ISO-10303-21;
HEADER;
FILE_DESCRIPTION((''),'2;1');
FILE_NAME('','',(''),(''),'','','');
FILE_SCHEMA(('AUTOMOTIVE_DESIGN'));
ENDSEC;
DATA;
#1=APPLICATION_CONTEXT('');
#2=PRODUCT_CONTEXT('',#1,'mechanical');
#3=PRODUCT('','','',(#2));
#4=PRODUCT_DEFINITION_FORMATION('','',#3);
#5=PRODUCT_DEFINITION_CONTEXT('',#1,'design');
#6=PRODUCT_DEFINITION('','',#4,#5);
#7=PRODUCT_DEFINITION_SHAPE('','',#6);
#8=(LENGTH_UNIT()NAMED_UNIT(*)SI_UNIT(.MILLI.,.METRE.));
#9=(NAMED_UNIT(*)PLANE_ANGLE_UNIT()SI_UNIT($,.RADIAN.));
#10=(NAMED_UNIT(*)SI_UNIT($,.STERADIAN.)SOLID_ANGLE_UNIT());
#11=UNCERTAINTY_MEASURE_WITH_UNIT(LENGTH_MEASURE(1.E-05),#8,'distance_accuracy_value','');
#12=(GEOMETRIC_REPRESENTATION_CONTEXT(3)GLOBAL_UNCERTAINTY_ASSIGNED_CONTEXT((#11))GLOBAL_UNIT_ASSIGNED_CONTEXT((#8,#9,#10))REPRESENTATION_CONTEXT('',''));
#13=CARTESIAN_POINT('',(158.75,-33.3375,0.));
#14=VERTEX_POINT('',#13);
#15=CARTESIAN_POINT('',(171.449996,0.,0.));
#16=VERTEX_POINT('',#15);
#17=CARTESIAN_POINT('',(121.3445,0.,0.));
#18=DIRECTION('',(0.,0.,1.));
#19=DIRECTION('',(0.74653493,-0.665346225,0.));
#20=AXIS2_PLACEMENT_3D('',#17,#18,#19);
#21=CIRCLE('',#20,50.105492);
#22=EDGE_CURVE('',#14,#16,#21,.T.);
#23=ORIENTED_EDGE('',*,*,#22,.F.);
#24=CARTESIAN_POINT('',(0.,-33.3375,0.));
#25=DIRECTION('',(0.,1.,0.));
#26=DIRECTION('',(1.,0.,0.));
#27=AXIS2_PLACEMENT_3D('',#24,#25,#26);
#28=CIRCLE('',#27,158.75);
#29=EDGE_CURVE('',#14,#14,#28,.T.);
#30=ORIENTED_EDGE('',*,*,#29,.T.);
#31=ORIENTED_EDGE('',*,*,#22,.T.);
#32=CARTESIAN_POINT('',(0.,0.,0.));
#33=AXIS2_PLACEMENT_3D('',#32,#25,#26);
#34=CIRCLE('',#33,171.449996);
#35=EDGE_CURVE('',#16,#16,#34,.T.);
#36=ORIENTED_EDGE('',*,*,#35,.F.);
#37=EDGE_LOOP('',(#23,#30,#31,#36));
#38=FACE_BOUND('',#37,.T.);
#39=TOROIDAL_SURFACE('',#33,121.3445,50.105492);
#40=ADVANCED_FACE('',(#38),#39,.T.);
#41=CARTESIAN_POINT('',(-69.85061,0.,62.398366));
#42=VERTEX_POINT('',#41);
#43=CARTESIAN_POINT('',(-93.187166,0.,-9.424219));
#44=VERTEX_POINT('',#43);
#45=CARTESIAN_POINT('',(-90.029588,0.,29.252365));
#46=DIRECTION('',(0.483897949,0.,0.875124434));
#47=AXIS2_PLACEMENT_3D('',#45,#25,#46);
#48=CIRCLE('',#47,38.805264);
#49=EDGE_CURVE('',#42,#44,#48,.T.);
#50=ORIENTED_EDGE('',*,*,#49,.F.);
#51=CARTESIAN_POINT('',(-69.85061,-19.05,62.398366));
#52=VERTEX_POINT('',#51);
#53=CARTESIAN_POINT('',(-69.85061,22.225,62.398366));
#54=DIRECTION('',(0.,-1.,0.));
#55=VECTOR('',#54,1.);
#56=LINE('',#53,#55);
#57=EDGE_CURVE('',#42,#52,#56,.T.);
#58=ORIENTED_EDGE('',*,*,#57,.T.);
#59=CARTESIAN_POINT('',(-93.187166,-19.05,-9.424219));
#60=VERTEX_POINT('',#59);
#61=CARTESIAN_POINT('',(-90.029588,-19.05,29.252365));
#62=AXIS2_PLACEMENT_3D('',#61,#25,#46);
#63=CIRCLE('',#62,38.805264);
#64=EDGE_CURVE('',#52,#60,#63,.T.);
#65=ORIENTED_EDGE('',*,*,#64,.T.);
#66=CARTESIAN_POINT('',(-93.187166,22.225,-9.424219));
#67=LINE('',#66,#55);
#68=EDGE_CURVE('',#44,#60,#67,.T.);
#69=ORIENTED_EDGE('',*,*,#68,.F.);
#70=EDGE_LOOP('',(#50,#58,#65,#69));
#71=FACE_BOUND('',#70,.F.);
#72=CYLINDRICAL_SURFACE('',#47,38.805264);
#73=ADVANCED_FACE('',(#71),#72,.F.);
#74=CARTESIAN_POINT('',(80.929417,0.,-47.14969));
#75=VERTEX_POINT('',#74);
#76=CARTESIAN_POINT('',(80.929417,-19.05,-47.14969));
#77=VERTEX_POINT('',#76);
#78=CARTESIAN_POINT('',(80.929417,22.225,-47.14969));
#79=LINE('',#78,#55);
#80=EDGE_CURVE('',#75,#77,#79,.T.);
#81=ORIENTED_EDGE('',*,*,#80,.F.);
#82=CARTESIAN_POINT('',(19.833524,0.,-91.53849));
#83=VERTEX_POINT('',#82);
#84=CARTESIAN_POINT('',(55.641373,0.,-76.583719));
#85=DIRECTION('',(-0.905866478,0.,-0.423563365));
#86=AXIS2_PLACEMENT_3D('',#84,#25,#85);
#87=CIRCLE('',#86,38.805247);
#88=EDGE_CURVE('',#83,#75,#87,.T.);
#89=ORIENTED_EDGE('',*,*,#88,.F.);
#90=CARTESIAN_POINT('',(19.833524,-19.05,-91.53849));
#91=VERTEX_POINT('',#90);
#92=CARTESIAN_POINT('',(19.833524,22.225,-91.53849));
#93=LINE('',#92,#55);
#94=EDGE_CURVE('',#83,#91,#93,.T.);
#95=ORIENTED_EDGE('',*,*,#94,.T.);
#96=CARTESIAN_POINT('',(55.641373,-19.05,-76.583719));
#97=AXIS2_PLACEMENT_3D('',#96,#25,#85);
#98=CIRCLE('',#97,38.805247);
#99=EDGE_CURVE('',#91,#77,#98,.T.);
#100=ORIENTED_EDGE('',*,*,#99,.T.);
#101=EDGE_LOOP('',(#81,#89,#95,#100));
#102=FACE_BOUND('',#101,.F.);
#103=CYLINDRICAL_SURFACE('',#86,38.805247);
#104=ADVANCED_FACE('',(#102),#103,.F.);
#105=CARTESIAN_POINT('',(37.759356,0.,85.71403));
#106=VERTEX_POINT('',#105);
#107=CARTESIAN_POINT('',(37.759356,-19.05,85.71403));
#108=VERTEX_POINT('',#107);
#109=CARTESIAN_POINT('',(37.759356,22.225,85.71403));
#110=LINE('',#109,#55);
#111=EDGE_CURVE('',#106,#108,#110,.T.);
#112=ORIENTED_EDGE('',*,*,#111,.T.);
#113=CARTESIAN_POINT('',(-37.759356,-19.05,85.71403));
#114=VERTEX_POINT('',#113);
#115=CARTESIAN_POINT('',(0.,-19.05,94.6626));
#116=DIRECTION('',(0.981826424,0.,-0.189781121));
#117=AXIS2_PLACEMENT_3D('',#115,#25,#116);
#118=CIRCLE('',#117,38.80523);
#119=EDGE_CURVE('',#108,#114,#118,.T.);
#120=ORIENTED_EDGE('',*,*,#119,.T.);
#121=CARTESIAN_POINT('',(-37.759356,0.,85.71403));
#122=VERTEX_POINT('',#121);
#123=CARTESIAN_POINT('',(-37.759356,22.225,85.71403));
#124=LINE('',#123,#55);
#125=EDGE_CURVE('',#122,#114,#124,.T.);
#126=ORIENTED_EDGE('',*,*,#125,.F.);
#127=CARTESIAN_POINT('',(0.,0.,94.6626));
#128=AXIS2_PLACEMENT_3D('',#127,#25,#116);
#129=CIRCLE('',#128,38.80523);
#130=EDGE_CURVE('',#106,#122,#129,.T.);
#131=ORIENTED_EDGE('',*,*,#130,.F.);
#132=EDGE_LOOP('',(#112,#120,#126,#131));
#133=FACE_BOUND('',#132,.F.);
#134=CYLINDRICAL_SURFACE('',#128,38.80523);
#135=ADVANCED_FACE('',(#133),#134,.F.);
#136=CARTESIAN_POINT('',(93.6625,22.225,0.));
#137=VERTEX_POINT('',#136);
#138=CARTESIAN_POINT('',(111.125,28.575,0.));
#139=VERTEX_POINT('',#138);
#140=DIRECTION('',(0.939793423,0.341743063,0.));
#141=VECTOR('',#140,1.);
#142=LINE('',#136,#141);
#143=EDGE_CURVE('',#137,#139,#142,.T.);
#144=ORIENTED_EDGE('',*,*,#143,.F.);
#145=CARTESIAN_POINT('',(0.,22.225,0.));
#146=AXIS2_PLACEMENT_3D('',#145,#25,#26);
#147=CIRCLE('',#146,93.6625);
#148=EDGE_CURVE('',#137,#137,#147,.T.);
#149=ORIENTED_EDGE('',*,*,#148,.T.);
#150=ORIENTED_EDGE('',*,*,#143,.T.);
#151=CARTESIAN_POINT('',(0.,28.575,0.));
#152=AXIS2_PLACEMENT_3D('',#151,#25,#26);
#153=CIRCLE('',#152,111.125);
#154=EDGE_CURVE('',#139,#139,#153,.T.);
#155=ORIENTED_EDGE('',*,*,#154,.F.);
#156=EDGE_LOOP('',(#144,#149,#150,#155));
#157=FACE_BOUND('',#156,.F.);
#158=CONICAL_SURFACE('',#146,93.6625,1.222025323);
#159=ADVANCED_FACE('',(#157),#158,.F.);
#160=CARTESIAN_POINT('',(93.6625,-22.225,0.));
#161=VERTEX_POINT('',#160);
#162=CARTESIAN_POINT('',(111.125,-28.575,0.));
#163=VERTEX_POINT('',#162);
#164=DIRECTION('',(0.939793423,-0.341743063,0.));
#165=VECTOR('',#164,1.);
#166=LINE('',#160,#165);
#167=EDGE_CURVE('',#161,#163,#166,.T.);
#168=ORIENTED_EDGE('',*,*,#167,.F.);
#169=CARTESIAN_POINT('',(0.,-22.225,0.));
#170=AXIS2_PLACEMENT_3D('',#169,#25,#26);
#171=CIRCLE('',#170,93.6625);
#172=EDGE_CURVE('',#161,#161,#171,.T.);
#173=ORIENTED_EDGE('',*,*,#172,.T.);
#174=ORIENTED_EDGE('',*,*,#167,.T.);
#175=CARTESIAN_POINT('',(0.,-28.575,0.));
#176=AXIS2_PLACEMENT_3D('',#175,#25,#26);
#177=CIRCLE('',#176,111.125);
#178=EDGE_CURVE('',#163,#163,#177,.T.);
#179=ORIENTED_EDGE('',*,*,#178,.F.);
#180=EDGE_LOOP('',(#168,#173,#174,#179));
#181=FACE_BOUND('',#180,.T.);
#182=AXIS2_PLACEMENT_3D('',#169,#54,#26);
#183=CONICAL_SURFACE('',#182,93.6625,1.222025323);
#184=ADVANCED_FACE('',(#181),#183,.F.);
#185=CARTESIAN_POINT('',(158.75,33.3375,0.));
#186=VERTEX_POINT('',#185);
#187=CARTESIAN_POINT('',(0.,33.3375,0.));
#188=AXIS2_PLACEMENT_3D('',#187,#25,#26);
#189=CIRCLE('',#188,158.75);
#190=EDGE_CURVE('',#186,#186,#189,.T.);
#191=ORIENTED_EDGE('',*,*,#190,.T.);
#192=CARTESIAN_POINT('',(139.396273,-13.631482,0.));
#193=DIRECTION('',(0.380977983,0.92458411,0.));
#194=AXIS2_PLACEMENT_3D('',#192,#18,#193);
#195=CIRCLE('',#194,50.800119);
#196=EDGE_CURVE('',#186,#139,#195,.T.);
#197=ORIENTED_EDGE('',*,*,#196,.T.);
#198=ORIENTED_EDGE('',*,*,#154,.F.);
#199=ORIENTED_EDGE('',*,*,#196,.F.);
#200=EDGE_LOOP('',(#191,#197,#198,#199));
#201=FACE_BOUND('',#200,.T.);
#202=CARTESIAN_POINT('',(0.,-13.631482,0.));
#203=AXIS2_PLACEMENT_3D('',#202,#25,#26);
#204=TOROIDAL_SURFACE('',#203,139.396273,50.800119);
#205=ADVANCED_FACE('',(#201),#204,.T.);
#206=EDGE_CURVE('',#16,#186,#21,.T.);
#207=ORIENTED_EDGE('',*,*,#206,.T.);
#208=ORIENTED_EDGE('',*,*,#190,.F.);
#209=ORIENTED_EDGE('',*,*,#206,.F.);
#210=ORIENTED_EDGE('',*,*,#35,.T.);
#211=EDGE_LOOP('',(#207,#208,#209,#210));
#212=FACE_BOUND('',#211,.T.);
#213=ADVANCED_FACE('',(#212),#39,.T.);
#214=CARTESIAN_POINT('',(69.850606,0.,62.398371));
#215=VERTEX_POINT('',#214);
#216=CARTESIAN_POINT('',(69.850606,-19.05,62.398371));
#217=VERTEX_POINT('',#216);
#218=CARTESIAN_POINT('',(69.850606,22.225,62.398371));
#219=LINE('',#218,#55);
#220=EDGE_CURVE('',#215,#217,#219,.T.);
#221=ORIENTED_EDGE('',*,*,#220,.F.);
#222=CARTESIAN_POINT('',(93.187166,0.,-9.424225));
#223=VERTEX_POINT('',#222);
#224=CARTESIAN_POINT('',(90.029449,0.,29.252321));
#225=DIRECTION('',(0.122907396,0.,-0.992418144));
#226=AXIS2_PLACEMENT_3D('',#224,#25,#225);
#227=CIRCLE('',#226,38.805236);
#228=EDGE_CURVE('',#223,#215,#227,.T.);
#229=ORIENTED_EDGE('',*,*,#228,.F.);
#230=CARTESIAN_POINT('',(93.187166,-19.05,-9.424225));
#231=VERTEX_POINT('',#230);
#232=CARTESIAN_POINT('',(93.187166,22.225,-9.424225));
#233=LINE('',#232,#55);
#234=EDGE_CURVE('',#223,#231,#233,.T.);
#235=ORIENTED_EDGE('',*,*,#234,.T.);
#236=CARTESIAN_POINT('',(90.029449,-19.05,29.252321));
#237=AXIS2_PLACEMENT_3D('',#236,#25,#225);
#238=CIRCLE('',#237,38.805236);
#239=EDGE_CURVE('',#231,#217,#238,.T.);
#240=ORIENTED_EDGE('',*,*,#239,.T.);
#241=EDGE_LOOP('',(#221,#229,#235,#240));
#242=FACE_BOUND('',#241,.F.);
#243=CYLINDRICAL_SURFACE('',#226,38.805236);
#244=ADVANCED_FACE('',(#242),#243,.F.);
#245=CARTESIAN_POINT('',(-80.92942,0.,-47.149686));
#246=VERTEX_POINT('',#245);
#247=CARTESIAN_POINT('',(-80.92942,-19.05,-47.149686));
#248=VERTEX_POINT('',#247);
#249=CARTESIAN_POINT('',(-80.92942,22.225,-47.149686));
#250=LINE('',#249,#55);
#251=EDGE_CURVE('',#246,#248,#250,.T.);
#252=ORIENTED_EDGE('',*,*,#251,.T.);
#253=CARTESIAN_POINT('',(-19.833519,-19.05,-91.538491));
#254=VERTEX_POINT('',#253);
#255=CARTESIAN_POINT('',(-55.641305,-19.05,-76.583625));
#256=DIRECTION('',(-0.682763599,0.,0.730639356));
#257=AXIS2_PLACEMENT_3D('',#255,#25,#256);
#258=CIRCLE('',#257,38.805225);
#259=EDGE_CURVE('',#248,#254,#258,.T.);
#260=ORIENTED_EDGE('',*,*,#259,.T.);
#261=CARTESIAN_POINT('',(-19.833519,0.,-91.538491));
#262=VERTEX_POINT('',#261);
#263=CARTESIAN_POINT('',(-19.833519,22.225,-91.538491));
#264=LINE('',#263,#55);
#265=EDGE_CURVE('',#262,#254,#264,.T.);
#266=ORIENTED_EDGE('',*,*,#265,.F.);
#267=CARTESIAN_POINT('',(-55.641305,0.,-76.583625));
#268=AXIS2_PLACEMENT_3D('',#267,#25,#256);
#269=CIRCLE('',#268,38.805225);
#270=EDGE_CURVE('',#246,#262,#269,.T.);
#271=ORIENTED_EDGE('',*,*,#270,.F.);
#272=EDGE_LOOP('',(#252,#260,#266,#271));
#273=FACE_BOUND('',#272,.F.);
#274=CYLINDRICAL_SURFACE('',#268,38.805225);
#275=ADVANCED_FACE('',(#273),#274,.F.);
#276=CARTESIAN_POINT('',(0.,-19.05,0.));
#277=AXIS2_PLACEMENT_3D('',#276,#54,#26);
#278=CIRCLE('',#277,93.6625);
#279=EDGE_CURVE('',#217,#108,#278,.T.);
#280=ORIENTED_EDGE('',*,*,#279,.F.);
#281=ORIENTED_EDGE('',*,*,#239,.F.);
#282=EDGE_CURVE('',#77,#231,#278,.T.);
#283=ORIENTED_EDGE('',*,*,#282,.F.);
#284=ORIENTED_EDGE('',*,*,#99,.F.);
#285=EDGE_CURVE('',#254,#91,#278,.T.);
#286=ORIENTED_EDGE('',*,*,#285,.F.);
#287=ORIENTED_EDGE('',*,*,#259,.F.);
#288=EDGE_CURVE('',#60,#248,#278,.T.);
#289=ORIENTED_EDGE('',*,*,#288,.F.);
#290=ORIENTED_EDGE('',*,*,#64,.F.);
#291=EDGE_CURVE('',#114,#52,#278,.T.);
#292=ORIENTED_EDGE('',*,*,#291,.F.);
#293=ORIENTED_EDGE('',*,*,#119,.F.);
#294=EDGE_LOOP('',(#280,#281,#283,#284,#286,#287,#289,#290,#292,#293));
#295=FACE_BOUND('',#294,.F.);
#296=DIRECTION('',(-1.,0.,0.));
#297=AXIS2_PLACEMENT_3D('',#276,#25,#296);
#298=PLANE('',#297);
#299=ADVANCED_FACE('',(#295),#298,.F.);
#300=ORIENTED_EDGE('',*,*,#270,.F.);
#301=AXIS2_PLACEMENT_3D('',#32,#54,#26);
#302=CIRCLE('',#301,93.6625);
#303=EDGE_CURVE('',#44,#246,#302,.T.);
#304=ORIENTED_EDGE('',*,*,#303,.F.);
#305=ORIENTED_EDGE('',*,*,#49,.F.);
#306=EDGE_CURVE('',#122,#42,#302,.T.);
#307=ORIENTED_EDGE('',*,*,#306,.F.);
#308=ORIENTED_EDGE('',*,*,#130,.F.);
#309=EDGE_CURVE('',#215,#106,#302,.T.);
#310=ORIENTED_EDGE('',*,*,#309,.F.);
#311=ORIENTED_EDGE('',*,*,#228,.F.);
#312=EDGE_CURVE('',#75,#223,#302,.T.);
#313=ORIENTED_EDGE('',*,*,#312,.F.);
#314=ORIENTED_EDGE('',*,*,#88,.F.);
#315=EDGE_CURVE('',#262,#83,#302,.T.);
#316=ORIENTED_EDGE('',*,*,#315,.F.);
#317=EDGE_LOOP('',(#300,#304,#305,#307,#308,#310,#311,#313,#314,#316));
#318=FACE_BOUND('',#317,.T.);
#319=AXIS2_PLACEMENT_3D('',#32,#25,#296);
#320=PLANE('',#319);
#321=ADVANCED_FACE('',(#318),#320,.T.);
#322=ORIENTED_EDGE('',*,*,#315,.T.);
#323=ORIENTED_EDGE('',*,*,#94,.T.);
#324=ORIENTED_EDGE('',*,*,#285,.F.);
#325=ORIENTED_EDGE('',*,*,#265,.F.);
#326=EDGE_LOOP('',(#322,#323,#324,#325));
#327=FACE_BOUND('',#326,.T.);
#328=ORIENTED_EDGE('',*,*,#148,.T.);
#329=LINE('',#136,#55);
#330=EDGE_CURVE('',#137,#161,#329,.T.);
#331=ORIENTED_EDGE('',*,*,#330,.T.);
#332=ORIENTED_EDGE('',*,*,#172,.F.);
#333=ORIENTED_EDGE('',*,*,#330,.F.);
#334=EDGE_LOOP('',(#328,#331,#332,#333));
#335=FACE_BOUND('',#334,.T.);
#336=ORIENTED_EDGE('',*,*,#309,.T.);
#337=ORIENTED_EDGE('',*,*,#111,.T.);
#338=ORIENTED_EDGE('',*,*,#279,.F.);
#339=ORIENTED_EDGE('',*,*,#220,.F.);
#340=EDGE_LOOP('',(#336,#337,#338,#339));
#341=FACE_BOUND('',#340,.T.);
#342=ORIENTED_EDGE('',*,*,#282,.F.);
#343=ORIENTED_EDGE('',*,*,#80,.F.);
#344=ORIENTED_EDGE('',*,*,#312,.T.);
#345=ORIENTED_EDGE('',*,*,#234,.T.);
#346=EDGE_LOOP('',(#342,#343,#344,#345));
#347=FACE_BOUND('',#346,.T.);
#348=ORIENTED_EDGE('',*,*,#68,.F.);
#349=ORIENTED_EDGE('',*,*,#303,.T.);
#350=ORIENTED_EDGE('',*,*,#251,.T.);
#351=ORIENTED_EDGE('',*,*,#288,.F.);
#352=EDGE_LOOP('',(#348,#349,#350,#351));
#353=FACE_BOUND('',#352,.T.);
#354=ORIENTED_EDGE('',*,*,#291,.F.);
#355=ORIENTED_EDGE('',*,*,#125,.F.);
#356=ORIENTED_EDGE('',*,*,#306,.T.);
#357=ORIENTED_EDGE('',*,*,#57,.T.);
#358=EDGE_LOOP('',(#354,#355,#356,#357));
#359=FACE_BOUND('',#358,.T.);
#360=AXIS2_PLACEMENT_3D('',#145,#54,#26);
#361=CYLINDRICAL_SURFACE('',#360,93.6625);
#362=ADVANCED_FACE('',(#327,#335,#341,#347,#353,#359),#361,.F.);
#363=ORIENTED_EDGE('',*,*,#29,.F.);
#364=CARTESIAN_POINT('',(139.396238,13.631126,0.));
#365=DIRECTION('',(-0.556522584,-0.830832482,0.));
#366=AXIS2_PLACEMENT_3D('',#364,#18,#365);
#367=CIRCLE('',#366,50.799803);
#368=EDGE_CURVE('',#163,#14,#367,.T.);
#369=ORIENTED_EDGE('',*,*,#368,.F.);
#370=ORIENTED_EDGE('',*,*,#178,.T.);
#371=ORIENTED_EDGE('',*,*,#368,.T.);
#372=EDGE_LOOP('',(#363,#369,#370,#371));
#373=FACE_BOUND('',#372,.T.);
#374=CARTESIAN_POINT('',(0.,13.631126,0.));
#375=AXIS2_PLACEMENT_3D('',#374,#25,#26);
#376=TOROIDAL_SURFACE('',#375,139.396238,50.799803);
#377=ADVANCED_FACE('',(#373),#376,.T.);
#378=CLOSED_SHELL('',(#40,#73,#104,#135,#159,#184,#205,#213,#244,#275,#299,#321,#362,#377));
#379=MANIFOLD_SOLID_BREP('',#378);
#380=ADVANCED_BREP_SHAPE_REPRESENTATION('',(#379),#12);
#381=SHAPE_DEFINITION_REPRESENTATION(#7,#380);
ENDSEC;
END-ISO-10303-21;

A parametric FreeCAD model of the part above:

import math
import FreeCAD as App
import Part
import Sketcher
Q = App.Units.Quantity

doc = App.newDocument("Part")
body = doc.addObject("PartDesign::Body", "Body")

# Sketch on XY plane
sketch1 = body.newObject("Sketcher::SketchObject", "Sketch")
sketch1.AttachmentSupport = (doc.getObject("XY_Plane"), [""])
sketch1.MapMode = "FlatFace"
sketch1.addGeometry([
    Part.ArcOfCircle(Part.Circle(App.Vector(139, 14, 0), App.Vector(0, 0, 1), 51), math.radians(-124), math.radians(-68)),  # 0
    Part.ArcOfCircle(Part.Circle(App.Vector(121, 0, 0), App.Vector(0, 0, 1), 50), math.radians(-42), math.radians(42)),  # 1
    Part.ArcOfCircle(Part.Circle(App.Vector(139, -14, 0), App.Vector(0, 0, 1), 51), math.radians(68), math.radians(124)),  # 2
    Part.LineSegment(App.Vector(111, 29, 0), App.Vector(94, 22, 0)),  # 3
    Part.LineSegment(App.Vector(94, 22, 0), App.Vector(94, -22, 0)),  # 4
    Part.LineSegment(App.Vector(94, -22, 0), App.Vector(111, -29, 0)),  # 5
], False)
sketch1.addConstraint([
    Sketcher.Constraint("Coincident", 0, 2, 1, 1),
    Sketcher.Constraint("Coincident", 1, 2, 2, 1),
    Sketcher.Constraint("Coincident", 2, 2, 3, 1),
    Sketcher.Constraint("Coincident", 3, 2, 4, 1),
    Sketcher.Constraint("Coincident", 4, 2, 5, 1),
    Sketcher.Constraint("Coincident", 5, 2, 0, 1),
    Sketcher.Constraint("Vertical", 4),
    Sketcher.Constraint("Equal", 0, 2),
    Sketcher.Constraint("Symmetric", 0, 3, 2, 3, -1),
    Sketcher.Constraint("PointOnObject", 1, 3, -1),
    Sketcher.Constraint("Vertical", 2, 2, 5, 2),
    Sketcher.Constraint("Equal", 3, 5),
    Sketcher.Constraint("Radius", 0, Q("2 in")),
    Sketcher.Constraint("DistanceY", 4, 2, 2, 2, Q("2 in")),
    Sketcher.Constraint("DistanceY", 4, 2, 4, 1, Q("1.75 in")),
    Sketcher.Constraint("DistanceX", -1, 1, 2, 2, Q("4.375 in")),
    Sketcher.Constraint("DistanceX", -1, 1, 3, 2, Q("3.6875 in")),
    Sketcher.Constraint("DistanceY", 0, 2, 1, 2, Q("2.625 in")),
    Sketcher.Constraint("DistanceX", -1, 1, 0, 2, Q("6.25 in")),
    Sketcher.Constraint("Radius", 1, Q("50.1055 mm")),
])
revolution = body.newObject("PartDesign::Revolution", "Revolution")
revolution.Profile = sketch1
revolution.ReferenceAxis = (sketch1, ["V_Axis"])
revolution.Angle = 360

# Sketch on XZ plane
sketch2 = body.newObject("Sketcher::SketchObject", "Sketch001")
sketch2.AttachmentSupport = (doc.getObject("XZ_Plane"), [""])
sketch2.MapMode = "FlatFace"
sketch2.addGeometry([
    Part.ArcOfCircle(Part.Circle(App.Vector(0, 94.6626, 0), App.Vector(0, 0, 1), 38.80523), math.radians(-169.059989), math.radians(-10.940011)),  # 0
    Part.ArcOfCircle(Part.Circle(App.Vector(0, 0, 0), App.Vector(0, 0, 1), 95.249938), math.radians(41.57818), math.radians(66.421829)),  # 1
    Part.ArcOfCircle(Part.Circle(App.Vector(90.0295, 29.2524, 0), App.Vector(0, 0, 1), 38.805309), math.radians(118.940206), math.radians(277.059838)),  # 2
    Part.ArcOfCircle(Part.Circle(App.Vector(-0.00147, 0.000307, 0), App.Vector(0, 0, 1), 95.251454), math.radians(-30.421521), math.radians(-5.578298)),  # 3
    Part.ArcOfCircle(Part.Circle(App.Vector(55.6413, -76.5837, 0), App.Vector(0, 0, 1), 38.805189), math.radians(46.940091), math.radians(205.059834)),  # 4
    Part.ArcOfCircle(Part.Circle(App.Vector(0, 0, 0), App.Vector(0, 0, 1), 95.24997), math.radians(-102.421845), math.radians(-77.578155)),  # 5
    Part.ArcOfCircle(Part.Circle(App.Vector(-55.6413, -76.5837, 0), App.Vector(0, 0, 1), 38.805283), math.radians(-25.059834), math.radians(133.059909)),  # 6
    Part.ArcOfCircle(Part.Circle(App.Vector(-0.00137, -0.000616, 0), App.Vector(0, 0, 1), 95.248537), math.radians(-174.422088), math.radians(-149.578093)),  # 7
    Part.ArcOfCircle(Part.Circle(App.Vector(-90.0295, 29.2524, 0), App.Vector(0, 0, 1), 38.805191), math.radians(-97.059838), math.radians(61.059794)),  # 8
    Part.ArcOfCircle(Part.Circle(App.Vector(0, 0, 0), App.Vector(0, 0, 1), 95.249938), math.radians(113.578171), math.radians(138.42182)),  # 9
], False)
sketch2.addConstraint([
    Sketcher.Constraint("Coincident", 0, 2, 1, 2),
    Sketcher.Constraint("Coincident", 1, 1, 2, 1),
    Sketcher.Constraint("Coincident", 2, 2, 3, 2),
    Sketcher.Constraint("Coincident", 3, 1, 4, 1),
    Sketcher.Constraint("Coincident", 4, 2, 5, 2),
    Sketcher.Constraint("Coincident", 5, 1, 6, 1),
    Sketcher.Constraint("Coincident", 6, 2, 7, 2),
    Sketcher.Constraint("Coincident", 7, 1, 8, 1),
    Sketcher.Constraint("Coincident", 8, 2, 9, 2),
    Sketcher.Constraint("Coincident", 9, 1, 0, 1),
    Sketcher.Constraint("Coincident", 1, 3, -1, 1),
    Sketcher.Constraint("Coincident", 5, 3, -1, 1),
    Sketcher.Constraint("Coincident", 9, 3, -1, 1),
    Sketcher.Constraint("Equal", 0, 2),
    Sketcher.Constraint("Equal", 2, 4),
    Sketcher.Constraint("Equal", 1, 5),
    Sketcher.Constraint("Equal", 4, 6),
    Sketcher.Constraint("Equal", 6, 8),
    Sketcher.Constraint("Equal", 5, 9),
    Sketcher.Constraint("Symmetric", 4, 3, 6, 3, -2),
    Sketcher.Constraint("Symmetric", 2, 3, 8, 3, -2),
    Sketcher.Constraint("Symmetric", 3, 3, 7, 3, -1),
    Sketcher.Constraint("PointOnObject", 0, 3, -2),
    Sketcher.Constraint("Horizontal", 3, 1, 6, 2),
    Sketcher.Constraint("DistanceX", 9, 1, 0, 2, Q("3 in")),
    Sketcher.Constraint("Radius", 1, Q("3.75 in")),
    Sketcher.Constraint("Radius", 0, Q("38.8052 mm")),
    Sketcher.Constraint("Radius", 3, Q("95.2515 mm")),
    Sketcher.Constraint("Radius", 7, Q("95.2485 mm")),
    Sketcher.Constraint("DistanceX", -1, 1, 4, 3, Q("2.1906 in")),
    Sketcher.Constraint("DistanceY", 4, 3, -1, 1, Q("3.0151 in")),
    Sketcher.Constraint("DistanceX", -1, 1, 1, 1, Q("2.8052 in")),
    Sketcher.Constraint("DistanceY", 2, 3, 0, 3, Q("2.5752 in")),
    Sketcher.Constraint("DistanceX", 8, 3, 3, 3, Q("3.5444 in")),
])
pad1 = body.newObject("PartDesign::Pad", "Pad")
pad1.Profile = sketch2
pad1.Length = Q("0.75 in")

doc.recompute()
